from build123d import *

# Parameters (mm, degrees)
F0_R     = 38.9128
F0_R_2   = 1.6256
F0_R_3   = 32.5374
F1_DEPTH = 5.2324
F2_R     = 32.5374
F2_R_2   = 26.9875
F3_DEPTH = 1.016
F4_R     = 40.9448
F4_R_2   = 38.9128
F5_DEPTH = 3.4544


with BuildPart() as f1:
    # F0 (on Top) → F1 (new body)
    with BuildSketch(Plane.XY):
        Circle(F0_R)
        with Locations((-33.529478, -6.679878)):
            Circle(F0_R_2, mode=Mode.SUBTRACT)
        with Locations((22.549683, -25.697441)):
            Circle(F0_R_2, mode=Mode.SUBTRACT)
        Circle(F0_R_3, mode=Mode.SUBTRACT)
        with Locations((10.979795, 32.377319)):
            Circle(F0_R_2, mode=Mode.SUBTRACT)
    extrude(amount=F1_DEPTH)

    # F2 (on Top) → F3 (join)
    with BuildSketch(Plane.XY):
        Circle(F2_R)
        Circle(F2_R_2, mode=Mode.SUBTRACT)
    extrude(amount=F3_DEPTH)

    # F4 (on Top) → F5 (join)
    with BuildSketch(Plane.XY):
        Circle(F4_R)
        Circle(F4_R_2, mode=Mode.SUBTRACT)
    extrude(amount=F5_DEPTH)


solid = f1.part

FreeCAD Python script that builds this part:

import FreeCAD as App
import Part
import Sketcher

V = App.Vector
Q = App.Units.Quantity

doc = App.newDocument("Part")
body = doc.addObject("PartDesign::Body", "Body")

# Sketch on XY plane
sketch1 = body.newObject("Sketcher::SketchObject", "Sketch")
sketch1.AttachmentSupport = (doc.getObject("XY_Plane"), [""])
sketch1.MapMode = "FlatFace"
sketch1.addGeometry([
    Part.Circle(V(0, 0, 0), V(0, 0, 1), 38.9128),  # 0
    Part.Circle(V(-33.529478, -6.679878, 0), V(0, 0, 1), 1.6256),  # 1
    Part.Circle(V(22.549683, -25.697441, 0), V(0, 0, 1), 1.6256),  # 2
    Part.Circle(V(0, 0, 0), V(0, 0, 1), 32.5374),  # 3
    Part.Circle(V(10.979795, 32.377319, 0), V(0, 0, 1), 1.6256),  # 4
], False)
sketch1.addConstraint([
    Sketcher.Constraint("Coincident", 0, 3, -1, 1),
    Sketcher.Constraint("Coincident", 3, 3, -1, 1),
    Sketcher.Constraint("Equal", 1, 2),
    Sketcher.Constraint("Equal", 2, 4),
    Sketcher.Constraint("Diameter", 0, Q("3.064 in")),
    Sketcher.Constraint("Diameter", 1, Q("0.128 in")),
    Sketcher.Constraint("Diameter", 3, Q("2.562 in")),
    Sketcher.Constraint("DistanceY", 1, 3, -1, 1, 6.679878),
    Sketcher.Constraint("DistanceY", 2, 3, -1, 1, 25.697441),
    Sketcher.Constraint("DistanceY", -1, 1, 4, 3, 32.377319),
    Sketcher.Constraint("DistanceX", 1, 3, 2, 3, 56.079161),
    Sketcher.Constraint("DistanceX", 4, 3, 2, 3, 11.569888),
    Sketcher.Constraint("DistanceX", 1, 3, -1, 1, 33.529478),
])
pad1 = body.newObject("PartDesign::Pad", "Pad")
pad1.Profile = sketch1
pad1.Length = Q("0.206 in")

# Sketch on XY plane
sketch2 = body.newObject("Sketcher::SketchObject", "Sketch001")
sketch2.AttachmentSupport = (doc.getObject("XY_Plane"), [""])
sketch2.MapMode = "FlatFace"
sketch2.addGeometry([
    Part.Circle(V(0, 0, 0), V(0, 0, 1), 32.5374),
    Part.Circle(V(0, 0, 0), V(0, 0, 1), 26.9875),
], False)
sketch2.addConstraint([
    Sketcher.Constraint("Coincident", 0, 3, -1, 1),
    Sketcher.Constraint("Coincident", 1, 3, -1, 1),
    Sketcher.Constraint("Diameter", 0, Q("2.562 in")),
    Sketcher.Constraint("Diameter", 1, Q("2.125 in")),
])
pad2 = body.newObject("PartDesign::Pad", "Pad001")
pad2.Profile = sketch2
pad2.Length = Q("0.04 in")

# Sketch on XY plane
sketch3 = body.newObject("Sketcher::SketchObject", "Sketch002")
sketch3.AttachmentSupport = (doc.getObject("XY_Plane"), [""])
sketch3.MapMode = "FlatFace"
sketch3.addGeometry([
    Part.Circle(V(0, 0, 0), V(0, 0, 1), 40.9448),
    Part.Circle(V(0, 0, 0), V(0, 0, 1), 38.9128),
], False)
sketch3.addConstraint([
    Sketcher.Constraint("Coincident", 0, 3, -1, 1),
    Sketcher.Constraint("Coincident", 1, 3, -1, 1),
    Sketcher.Constraint("Diameter", 0, Q("3.224 in")),
    Sketcher.Constraint("Diameter", 1, Q("3.064 in")),
])
pad3 = body.newObject("PartDesign::Pad", "Pad002")
pad3.Profile = sketch3
pad3.Length = Q("0.136 in")

doc.recompute()
